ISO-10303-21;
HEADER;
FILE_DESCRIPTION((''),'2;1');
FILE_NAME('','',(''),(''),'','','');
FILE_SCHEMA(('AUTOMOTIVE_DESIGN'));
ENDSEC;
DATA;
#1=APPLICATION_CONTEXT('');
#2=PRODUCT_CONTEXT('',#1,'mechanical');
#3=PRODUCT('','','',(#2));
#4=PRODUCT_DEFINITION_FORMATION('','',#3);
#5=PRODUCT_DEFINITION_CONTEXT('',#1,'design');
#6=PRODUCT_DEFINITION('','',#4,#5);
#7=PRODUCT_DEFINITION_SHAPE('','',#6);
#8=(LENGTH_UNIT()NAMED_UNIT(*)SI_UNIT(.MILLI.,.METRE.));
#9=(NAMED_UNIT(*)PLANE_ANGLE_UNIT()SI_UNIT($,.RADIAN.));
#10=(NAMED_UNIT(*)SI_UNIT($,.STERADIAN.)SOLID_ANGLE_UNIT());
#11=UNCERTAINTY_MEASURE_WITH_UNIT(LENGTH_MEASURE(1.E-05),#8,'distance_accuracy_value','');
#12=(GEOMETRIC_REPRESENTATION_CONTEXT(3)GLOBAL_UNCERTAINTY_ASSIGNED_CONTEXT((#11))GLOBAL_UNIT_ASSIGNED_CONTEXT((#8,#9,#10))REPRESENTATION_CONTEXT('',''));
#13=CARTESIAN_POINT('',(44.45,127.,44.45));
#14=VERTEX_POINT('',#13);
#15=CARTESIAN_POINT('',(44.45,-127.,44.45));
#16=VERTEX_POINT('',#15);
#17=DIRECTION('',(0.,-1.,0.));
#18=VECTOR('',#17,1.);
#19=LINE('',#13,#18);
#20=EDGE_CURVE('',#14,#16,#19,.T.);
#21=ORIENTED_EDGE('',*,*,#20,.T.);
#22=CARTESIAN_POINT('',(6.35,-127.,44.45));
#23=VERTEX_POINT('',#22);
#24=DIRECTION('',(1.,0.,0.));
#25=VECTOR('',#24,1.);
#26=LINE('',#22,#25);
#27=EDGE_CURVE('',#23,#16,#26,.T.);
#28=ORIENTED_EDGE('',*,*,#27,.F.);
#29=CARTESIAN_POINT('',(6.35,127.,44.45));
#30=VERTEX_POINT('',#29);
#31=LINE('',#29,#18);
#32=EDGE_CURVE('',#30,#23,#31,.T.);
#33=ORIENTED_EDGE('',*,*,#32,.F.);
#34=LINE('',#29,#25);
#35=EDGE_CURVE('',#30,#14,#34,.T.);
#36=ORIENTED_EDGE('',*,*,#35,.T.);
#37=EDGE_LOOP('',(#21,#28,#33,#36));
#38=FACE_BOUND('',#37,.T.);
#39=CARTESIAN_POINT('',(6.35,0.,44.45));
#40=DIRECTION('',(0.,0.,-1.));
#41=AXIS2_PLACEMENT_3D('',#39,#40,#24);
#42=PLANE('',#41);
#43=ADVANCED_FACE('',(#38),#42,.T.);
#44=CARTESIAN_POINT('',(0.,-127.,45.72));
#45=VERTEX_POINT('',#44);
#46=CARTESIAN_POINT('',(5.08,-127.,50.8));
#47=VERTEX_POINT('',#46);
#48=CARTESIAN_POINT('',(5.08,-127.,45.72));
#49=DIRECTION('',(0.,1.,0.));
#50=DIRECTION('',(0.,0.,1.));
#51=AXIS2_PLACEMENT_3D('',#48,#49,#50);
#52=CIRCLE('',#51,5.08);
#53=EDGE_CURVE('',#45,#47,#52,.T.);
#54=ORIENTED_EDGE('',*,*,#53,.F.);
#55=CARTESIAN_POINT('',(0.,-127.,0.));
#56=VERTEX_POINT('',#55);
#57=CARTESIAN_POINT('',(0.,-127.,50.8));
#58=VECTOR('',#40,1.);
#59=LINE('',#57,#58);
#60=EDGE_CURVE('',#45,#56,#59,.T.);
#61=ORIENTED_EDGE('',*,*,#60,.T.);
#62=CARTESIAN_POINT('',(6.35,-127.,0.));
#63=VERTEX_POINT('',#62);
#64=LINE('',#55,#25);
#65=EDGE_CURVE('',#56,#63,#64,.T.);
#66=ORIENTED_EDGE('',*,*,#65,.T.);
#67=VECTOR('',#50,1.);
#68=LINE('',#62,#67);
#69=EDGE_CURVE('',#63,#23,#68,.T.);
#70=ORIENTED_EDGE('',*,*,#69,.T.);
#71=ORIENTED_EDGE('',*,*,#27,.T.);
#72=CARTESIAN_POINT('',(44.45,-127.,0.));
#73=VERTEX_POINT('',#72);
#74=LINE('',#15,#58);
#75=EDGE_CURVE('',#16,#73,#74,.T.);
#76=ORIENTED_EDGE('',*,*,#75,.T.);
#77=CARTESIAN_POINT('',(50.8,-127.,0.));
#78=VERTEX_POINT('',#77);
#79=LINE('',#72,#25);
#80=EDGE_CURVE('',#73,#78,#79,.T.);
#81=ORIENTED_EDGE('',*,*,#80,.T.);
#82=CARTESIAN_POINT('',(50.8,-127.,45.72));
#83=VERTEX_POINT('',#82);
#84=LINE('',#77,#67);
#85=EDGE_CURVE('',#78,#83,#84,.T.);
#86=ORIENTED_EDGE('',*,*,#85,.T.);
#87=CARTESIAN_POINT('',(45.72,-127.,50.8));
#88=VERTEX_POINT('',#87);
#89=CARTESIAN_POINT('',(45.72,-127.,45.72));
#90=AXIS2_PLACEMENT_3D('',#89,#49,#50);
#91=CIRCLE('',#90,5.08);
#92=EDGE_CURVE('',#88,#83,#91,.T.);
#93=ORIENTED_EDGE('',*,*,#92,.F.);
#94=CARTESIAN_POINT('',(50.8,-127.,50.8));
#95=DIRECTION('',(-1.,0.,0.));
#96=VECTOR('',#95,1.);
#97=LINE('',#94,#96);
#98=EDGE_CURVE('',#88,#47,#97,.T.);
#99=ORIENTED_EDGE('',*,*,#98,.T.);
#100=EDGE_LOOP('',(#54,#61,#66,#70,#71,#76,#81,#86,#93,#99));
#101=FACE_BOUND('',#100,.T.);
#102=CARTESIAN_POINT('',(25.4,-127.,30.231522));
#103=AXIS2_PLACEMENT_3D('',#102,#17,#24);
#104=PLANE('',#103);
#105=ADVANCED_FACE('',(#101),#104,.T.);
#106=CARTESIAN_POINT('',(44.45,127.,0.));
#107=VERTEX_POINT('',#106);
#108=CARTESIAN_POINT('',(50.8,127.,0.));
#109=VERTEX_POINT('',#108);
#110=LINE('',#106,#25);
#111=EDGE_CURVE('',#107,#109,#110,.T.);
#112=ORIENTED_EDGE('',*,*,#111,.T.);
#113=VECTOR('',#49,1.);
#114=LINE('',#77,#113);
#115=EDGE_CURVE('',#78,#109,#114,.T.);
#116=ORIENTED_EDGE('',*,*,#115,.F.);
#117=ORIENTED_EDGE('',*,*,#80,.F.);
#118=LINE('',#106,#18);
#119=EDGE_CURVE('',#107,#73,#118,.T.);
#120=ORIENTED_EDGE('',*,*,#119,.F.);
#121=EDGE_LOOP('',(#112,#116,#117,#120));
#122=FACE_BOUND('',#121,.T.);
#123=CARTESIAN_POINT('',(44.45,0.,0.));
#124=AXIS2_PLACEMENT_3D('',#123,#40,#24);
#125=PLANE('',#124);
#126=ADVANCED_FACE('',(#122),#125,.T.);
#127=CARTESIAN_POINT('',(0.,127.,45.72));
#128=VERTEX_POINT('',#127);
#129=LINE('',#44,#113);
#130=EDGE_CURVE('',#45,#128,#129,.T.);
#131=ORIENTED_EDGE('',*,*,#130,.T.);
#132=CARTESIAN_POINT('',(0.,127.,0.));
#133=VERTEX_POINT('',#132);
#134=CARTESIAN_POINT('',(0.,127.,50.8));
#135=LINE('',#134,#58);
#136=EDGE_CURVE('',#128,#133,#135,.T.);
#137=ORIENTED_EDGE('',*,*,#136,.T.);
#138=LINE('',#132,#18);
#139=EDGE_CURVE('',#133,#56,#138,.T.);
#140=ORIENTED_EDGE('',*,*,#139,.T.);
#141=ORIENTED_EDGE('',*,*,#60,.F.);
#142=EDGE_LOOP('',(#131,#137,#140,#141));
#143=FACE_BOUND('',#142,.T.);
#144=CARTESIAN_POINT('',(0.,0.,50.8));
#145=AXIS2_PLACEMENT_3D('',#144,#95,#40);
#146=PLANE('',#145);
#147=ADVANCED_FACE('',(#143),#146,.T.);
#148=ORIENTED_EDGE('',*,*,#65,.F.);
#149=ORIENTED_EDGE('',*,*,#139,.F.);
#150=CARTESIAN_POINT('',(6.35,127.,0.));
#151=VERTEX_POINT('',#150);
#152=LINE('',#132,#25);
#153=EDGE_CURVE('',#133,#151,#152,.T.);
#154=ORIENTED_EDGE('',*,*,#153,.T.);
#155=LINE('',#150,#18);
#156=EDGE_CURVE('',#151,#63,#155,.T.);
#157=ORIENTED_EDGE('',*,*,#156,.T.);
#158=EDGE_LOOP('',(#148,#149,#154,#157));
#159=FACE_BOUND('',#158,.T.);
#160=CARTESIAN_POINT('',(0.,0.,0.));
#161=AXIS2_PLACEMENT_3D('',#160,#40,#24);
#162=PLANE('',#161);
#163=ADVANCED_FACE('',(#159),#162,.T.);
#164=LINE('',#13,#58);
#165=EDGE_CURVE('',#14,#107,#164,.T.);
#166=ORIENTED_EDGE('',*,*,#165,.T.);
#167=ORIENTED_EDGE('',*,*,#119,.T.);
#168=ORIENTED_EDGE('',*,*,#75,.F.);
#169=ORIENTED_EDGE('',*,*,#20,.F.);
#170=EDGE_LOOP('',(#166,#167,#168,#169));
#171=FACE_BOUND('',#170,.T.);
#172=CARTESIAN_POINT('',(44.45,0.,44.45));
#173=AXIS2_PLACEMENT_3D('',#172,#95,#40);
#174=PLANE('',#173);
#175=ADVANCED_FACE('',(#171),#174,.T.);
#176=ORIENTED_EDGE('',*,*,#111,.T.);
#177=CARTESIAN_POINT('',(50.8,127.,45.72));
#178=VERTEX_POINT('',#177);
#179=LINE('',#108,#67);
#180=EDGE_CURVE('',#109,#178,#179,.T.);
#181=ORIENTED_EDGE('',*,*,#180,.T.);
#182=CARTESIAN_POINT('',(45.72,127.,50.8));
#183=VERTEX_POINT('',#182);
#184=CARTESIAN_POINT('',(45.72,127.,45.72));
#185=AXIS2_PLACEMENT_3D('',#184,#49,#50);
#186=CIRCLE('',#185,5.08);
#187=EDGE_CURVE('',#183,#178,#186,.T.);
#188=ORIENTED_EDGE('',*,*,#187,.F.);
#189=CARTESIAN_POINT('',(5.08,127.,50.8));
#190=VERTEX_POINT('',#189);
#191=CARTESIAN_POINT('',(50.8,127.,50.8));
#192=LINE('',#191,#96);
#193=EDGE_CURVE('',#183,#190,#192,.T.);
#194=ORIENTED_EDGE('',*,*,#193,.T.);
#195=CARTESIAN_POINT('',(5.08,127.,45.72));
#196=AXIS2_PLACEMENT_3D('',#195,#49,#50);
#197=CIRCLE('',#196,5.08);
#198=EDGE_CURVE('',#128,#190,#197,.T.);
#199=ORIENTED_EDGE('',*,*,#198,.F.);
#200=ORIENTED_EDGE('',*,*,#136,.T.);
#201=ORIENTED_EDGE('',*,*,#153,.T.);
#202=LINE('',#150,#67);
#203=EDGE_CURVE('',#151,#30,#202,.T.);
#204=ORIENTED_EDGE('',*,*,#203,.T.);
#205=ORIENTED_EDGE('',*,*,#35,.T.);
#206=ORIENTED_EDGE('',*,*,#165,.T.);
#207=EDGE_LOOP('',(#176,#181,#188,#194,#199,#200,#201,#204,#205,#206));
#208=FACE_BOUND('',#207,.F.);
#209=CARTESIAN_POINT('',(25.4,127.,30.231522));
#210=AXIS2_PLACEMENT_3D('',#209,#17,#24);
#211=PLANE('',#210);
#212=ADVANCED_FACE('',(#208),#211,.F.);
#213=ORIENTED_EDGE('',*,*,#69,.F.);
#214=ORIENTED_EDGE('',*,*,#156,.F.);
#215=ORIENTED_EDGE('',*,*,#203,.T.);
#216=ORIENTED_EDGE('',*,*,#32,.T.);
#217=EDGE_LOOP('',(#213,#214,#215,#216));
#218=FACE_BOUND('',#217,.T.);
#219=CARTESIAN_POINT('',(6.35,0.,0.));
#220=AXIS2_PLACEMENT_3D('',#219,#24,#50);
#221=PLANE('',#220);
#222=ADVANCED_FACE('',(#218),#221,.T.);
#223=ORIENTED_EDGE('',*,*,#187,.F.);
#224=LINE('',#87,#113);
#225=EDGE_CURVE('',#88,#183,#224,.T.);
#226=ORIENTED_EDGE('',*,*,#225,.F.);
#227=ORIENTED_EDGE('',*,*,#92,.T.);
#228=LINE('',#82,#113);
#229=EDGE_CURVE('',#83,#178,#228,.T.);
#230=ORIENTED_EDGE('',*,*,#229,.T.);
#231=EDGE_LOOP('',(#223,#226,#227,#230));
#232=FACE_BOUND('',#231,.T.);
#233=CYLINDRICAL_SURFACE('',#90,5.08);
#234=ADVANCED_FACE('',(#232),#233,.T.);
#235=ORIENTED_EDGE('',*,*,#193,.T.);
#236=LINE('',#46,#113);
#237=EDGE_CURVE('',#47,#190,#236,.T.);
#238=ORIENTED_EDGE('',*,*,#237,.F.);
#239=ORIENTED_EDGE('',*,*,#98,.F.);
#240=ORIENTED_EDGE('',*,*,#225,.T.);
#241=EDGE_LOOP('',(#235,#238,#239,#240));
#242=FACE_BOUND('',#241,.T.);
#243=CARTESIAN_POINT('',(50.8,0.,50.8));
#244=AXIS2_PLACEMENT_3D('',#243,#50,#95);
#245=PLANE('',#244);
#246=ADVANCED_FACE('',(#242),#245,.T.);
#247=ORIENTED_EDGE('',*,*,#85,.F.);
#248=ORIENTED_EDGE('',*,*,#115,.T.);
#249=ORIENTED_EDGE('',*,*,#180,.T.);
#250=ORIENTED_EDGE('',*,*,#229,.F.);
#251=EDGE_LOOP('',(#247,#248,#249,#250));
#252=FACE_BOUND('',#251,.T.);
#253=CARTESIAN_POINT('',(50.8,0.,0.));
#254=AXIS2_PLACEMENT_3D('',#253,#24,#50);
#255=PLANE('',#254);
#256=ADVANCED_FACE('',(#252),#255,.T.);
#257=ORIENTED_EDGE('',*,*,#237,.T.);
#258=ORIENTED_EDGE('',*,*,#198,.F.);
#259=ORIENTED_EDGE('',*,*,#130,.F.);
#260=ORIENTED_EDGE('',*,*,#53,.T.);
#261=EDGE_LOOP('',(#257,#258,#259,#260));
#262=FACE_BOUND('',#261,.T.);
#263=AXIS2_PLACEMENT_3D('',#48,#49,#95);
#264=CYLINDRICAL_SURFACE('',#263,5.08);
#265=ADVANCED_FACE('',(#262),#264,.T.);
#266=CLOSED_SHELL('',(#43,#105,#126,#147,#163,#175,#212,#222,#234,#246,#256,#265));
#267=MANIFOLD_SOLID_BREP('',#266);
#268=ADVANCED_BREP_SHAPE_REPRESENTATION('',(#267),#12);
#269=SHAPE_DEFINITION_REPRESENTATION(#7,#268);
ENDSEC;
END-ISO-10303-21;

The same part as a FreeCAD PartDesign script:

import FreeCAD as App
import Part
import Sketcher

V = App.Vector
Q = App.Units.Quantity


def edges_at(feature, points):
    """Names of the edges that pass closest to the given points."""
    edges = feature.Shape.Edges
    near = lambda p: min(range(len(edges)), key=lambda i: edges[i].distToShape(Part.Vertex(*p))[0])
    return sorted({f"Edge{near(p) + 1}" for p in points})


def add_polygon(sketch, points):
    """Adds a closed chain of lines whose ends are joined by coincident constraints."""
    first, n = sketch.GeometryCount, len(points)
    for a, b in zip(points, points[1:] + points[:1]):
        sketch.addGeometry(Part.LineSegment(App.Vector(*a, 0), App.Vector(*b, 0)), False)
    for i in range(n):
        sketch.addConstraint(Sketcher.Constraint("Coincident", first + i, 2, first + (i + 1) % n, 1))

doc = App.newDocument("Part")
params = doc.addObject("Spreadsheet::Sheet", "Params")
for row, (alias, value) in enumerate([
    ("sketch1_width", "2 in"),
    ("sketch1_width2", "1.5 in"),
    ("sketch1_height", "1.75 in"),
    ("pad1_length", "10 in"),
    ("fillet_radius", "0.2 in"),
], start=1):
    params.set(f"A{row}", alias)
    params.set(f"B{row}", "=" + value)
    params.setAlias(f"B{row}", alias)

body = doc.addObject("PartDesign::Body", "Body")

# Sketch on XZ plane
sketch1 = body.newObject("Sketcher::SketchObject", "Sketch")
sketch1.AttachmentSupport = (doc.getObject("XZ_Plane"), [""])
sketch1.MapMode = "FlatFace"
add_polygon(sketch1, [(0, 51), (0, 0), (6, 0), (6, 44), (44, 44), (44, 0), (51, 0), (51, 51)])  # lines 0-7
sketch1.addConstraint([
    Sketcher.Constraint("Vertical", 0),
    Sketcher.Constraint("Horizontal", 1),
    Sketcher.Constraint("Vertical", 2),
    Sketcher.Constraint("Horizontal", 3),
    Sketcher.Constraint("Vertical", 4),
    Sketcher.Constraint("Horizontal", 5),
    Sketcher.Constraint("Vertical", 6),
    Sketcher.Constraint("Horizontal", 7),
    Sketcher.Constraint("Coincident", 0, 2, -1, 1),
    Sketcher.Constraint("PointOnObject", 4, 2, -1),
    Sketcher.Constraint("Equal", 1, 5),
    Sketcher.Constraint("Equal", 7, 0),
    Sketcher.Constraint("DistanceX", 7, 2, 7, 1, Q("2 in")),
    Sketcher.Constraint("DistanceX", 3, 1, 3, 2, Q("1.5 in")),
    Sketcher.Constraint("DistanceY", 2, 1, 2, 2, Q("1.75 in")),
])
sketch1.setExpression("Constraints[20]", "Params.sketch1_width")
sketch1.setExpression("Constraints[21]", "Params.sketch1_width2")
sketch1.setExpression("Constraints[22]", "Params.sketch1_height")
pad1 = body.newObject("PartDesign::Pad", "Pad")
pad1.Profile = sketch1
pad1.setExpression("Length", "Params.pad1_length")
pad1.Midplane = True
doc.recompute()

fillet = body.newObject("PartDesign::Fillet", "Fillet")
fillet.Base = (pad1, edges_at(pad1, [(0, 0, 50.8), (50.8, 0, 50.8)]))
fillet.setExpression("Radius", "Params.fillet_radius")

doc.recompute()
